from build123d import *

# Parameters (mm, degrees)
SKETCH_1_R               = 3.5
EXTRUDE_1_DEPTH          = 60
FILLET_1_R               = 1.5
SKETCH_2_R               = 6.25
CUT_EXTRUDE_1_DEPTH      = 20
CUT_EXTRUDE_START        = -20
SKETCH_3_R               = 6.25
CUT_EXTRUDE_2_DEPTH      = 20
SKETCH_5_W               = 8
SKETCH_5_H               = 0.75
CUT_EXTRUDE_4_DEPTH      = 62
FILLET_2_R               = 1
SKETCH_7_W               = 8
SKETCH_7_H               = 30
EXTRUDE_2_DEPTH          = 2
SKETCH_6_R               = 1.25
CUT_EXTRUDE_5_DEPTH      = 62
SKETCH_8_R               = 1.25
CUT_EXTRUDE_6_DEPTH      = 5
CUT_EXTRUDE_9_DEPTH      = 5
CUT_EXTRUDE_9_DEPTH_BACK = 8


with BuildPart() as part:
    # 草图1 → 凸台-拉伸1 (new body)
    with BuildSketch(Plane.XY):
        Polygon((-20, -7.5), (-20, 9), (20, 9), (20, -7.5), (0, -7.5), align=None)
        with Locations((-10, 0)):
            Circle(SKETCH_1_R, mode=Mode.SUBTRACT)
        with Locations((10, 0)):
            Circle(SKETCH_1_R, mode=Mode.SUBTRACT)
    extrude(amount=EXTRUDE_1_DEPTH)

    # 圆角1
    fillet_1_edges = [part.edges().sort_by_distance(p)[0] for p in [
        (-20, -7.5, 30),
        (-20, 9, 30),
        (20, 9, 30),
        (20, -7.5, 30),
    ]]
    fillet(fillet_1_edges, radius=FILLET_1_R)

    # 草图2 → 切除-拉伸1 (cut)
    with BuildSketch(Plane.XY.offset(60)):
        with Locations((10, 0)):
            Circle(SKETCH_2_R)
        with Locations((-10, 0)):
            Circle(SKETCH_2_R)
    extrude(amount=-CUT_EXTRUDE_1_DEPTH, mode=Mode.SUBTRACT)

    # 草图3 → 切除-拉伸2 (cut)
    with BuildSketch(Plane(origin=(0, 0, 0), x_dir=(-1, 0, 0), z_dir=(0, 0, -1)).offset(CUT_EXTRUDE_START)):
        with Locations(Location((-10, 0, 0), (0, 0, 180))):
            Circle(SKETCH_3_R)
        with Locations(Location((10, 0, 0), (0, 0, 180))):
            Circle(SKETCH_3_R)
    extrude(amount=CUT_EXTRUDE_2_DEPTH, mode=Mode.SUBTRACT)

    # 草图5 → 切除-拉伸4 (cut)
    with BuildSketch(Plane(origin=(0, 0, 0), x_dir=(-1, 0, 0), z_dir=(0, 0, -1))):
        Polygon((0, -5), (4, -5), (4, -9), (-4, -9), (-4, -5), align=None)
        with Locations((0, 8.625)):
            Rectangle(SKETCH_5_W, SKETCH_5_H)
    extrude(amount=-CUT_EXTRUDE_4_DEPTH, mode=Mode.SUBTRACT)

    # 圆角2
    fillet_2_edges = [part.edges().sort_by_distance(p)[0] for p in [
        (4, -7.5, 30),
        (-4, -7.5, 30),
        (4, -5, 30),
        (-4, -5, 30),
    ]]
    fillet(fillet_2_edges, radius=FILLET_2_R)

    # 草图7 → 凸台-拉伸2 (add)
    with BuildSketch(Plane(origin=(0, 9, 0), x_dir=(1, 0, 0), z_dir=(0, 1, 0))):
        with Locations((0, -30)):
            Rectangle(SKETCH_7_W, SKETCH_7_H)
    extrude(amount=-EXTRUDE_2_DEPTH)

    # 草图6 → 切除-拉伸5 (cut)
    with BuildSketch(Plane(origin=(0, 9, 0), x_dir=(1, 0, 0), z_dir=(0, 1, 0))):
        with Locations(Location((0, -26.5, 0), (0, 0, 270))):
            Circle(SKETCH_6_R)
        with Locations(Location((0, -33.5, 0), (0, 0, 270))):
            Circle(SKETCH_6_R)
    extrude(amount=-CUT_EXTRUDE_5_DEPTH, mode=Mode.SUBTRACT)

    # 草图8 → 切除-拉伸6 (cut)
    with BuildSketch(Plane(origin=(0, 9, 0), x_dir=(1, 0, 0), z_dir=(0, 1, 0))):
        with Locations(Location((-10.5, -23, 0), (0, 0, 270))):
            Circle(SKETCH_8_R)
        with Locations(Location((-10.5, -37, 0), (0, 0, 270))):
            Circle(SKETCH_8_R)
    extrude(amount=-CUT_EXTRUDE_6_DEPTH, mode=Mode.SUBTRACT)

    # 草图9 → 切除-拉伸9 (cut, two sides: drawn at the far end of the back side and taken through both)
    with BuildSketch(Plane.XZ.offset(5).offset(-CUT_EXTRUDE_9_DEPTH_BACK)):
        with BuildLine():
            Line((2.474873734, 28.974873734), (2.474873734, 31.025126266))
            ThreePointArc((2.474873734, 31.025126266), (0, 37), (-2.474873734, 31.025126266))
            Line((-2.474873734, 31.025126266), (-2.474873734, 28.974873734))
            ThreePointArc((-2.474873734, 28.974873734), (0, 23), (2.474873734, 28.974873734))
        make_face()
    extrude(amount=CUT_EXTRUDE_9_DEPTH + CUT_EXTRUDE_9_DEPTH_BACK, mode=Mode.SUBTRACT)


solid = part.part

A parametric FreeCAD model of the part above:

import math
import FreeCAD as App
import Part
import Sketcher
from FreeCAD import Vector


def edges_at(feature, points):
    """Names of the edges that pass closest to the given points."""
    edges = feature.Shape.Edges
    near = lambda p: min(range(len(edges)), key=lambda i: edges[i].distToShape(Part.Vertex(*p))[0])
    return sorted({f"Edge{near(p) + 1}" for p in points})


def add_polygon(sketch, points):
    """Adds a closed chain of lines whose ends are joined by coincident constraints."""
    first, n = sketch.GeometryCount, len(points)
    for a, b in zip(points, points[1:] + points[:1]):
        sketch.addGeometry(Part.LineSegment(App.Vector(*a, 0), App.Vector(*b, 0)), False)
    for i in range(n):
        sketch.addConstraint(Sketcher.Constraint("Coincident", first + i, 2, first + (i + 1) % n, 1))

doc = App.newDocument("Part")
body = doc.addObject("PartDesign::Body", "Body")

sketch1 = doc.addObject("Sketcher::SketchObject", "Sketch")
body.addObject(sketch1)
sketch1.AttachmentSupport = (doc.XY_Plane, [""])
sketch1.MapMode = "FlatFace"
add_polygon(sketch1, [(-20, 9), (-20, -7.5), (20, -7.5), (20, 9)])
sketch1.addGeometry(Part.Circle(Vector(10, 0, 0), Vector(0, 0, 1), 3.5), False)
sketch1.addGeometry(Part.Circle(Vector(-10, 0, 0), Vector(0, 0, 1), 3.5), False)
sketch1.addConstraint([
    Sketcher.Constraint("Vertical", 0),
    Sketcher.Constraint("Horizontal", 1),
    Sketcher.Constraint("Vertical", 2),
    Sketcher.Constraint("Horizontal", 3),
    Sketcher.Constraint("Equal", 4, 5),
    Sketcher.Constraint("Symmetric", 4, 3, 5, 3, -1, 1),
    Sketcher.Constraint("PointOnObject", 4, 3, -1),
    Sketcher.Constraint("Diameter", 4, 7.0),
    Sketcher.Constraint("DistanceX", 1, 1, 1, 2, 40.0),
    Sketcher.Constraint("DistanceY", 0, 2, 0, 1, 16.5),
    Sketcher.Constraint("DistanceX", -1, 1, 4, 3, 10.0),
    Sketcher.Constraint("DistanceX", 0, 2, -1, 1, 20.0),
    Sketcher.Constraint("DistanceY", -1, 1, 2, 2, 9.0),
])
pad1 = doc.addObject("PartDesign::Pad", "Pad")
body.addObject(pad1)
pad1.Profile = sketch1
pad1.Length = 60
doc.recompute()

fillet = doc.addObject("PartDesign::Fillet", "Fillet")
body.addObject(fillet)
fillet.Base = (pad1, edges_at(pad1, [
    (-20, -7.5, 30),
    (-20, 9, 30),
    (20, 9, 30),
    (20, -7.5, 30),
]))
fillet.Radius = 1.5

sketch2 = doc.addObject("Sketcher::SketchObject", "Sketch001")
body.addObject(sketch2)
sketch2.AttachmentSupport = (doc.XY_Plane, [""])
sketch2.MapMode = "FlatFace"
sketch2.AttachmentOffset = App.Placement(Vector(0, 0, 60), App.Rotation())
sketch2.addGeometry([
    Part.Circle(Vector(10, 0, 0), Vector(0, 0, 1), 6),
    Part.Circle(Vector(-10, 0, 0), Vector(0, 0, 1), 6),
], False)
sketch2.addConstraint([
    Sketcher.Constraint("Equal", 0, 1),
    Sketcher.Constraint("Symmetric", 0, 3, 1, 3, -1, 1),
    Sketcher.Constraint("PointOnObject", 0, 3, -1),
    Sketcher.Constraint("Diameter", 0, 12.5),
    Sketcher.Constraint("DistanceX", -1, 1, 0, 3, 10.0),
])
pocket1 = doc.addObject("PartDesign::Pocket", "Pocket")
body.addObject(pocket1)
pocket1.Profile = sketch2
pocket1.Length = 20

sketch3 = doc.addObject("Sketcher::SketchObject", "Sketch002")
body.addObject(sketch3)
sketch3.AttachmentSupport = (doc.XY_Plane, [""])
sketch3.MapMode = "FlatFace"
sketch3.AttachmentOffset = App.Placement(Vector(0, 0, 20), App.Rotation())
sketch3.addGeometry([
    Part.Circle(Vector(10, 0, 0), Vector(0, 0, 1), 6),
    Part.Circle(Vector(-10, 0, 0), Vector(0, 0, 1), 6),
], False)
sketch3.addConstraint([
    Sketcher.Constraint("Equal", 0, 1),
    Sketcher.Constraint("Symmetric", 0, 3, 1, 3, -1, 1),
    Sketcher.Constraint("PointOnObject", 0, 3, -1),
    Sketcher.Constraint("Diameter", 0, 12.5),
    Sketcher.Constraint("DistanceX", -1, 1, 0, 3, 10.0),
])
pocket2 = doc.addObject("PartDesign::Pocket", "Pocket001")
body.addObject(pocket2)
pocket2.Profile = sketch3
pocket2.Length = 20

sketch4 = doc.addObject("Sketcher::SketchObject", "Sketch003")
body.addObject(sketch4)
sketch4.AttachmentSupport = (doc.XY_Plane, [""])
sketch4.MapMode = "FlatFace"
add_polygon(sketch4, [(-4, -5), (4, -5), (4, -9), (-4, -9)])
add_polygon(sketch4, [(4, 9), (4, 8.2), (-4, 8.2), (-4, 9)])
sketch4.addConstraint([
    Sketcher.Constraint("Horizontal", 0),
    Sketcher.Constraint("Vertical", 1),
    Sketcher.Constraint("Horizontal", 2),
    Sketcher.Constraint("Vertical", 3),
    Sketcher.Constraint("Vertical", 4),
    Sketcher.Constraint("Horizontal", 5),
    Sketcher.Constraint("Vertical", 6),
    Sketcher.Constraint("Horizontal", 7),
    Sketcher.Constraint("Symmetric", 1, 2, 6, 2, -1, 1),
    Sketcher.Constraint("Vertical", 1, 2, 4, 2),
    Sketcher.Constraint("Vertical", 3, 2, 5, 2),
    Sketcher.Constraint("DistanceX", 0, 1, 0, 2, 8.0),
    Sketcher.Constraint("DistanceY", 1, 2, 1, 1, 4.0),
    Sketcher.Constraint("DistanceY", 0, 2, -1, 1, 5.0),
    Sketcher.Constraint("DistanceY", 4, 2, 4, 1, 0.75),
])
pocket3 = doc.addObject("PartDesign::Pocket", "Pocket002")
body.addObject(pocket3)
pocket3.Profile = sketch4
pocket3.Length = 62
pocket3.Reversed = True
doc.recompute()

fillet2 = doc.addObject("PartDesign::Fillet", "Fillet001")
body.addObject(fillet2)
fillet2.Base = (pocket3, edges_at(pocket3, [
    (4, -7.5, 30),
    (-4, -7.5, 30),
    (4, -5, 30),
    (-4, -5, 30),
]))
fillet2.Radius = 1

sketch5 = doc.addObject("Sketcher::SketchObject", "Sketch004")
body.addObject(sketch5)
sketch5.AttachmentSupport = (doc.XZ_Plane, [""])
sketch5.MapMode = "FlatFace"
sketch5.AttachmentOffset = App.Placement(Vector(0, 0, -9), App.Rotation())
add_polygon(sketch5, [(-4, 15), (-4, 45), (4, 45), (4, 15)])
sketch5.addConstraint([
    Sketcher.Constraint("Vertical", 0),
    Sketcher.Constraint("Horizontal", 1),
    Sketcher.Constraint("Vertical", 2),
    Sketcher.Constraint("Horizontal", 3),
    Sketcher.Constraint("DistanceX", 1, 1, 1, 2, 8.0),
    Sketcher.Constraint("DistanceY", 0, 1, 0, 2, 30.0),
    Sketcher.Constraint("DistanceX", 0, 2, -1, 1, 4.0),
    Sketcher.Constraint("DistanceY", -1, 1, 0, 2, 45.0),
])
pad2 = doc.addObject("PartDesign::Pad", "Pad001")
body.addObject(pad2)
pad2.Profile = sketch5
pad2.Length = 2

sketch6 = doc.addObject("Sketcher::SketchObject", "Sketch005")
body.addObject(sketch6)
sketch6.AttachmentSupport = (doc.XZ_Plane, [""])
sketch6.MapMode = "FlatFace"
sketch6.AttachmentOffset = App.Placement(Vector(0, 0, -9), App.Rotation())
sketch6.addGeometry([
    Part.Circle(Vector(0, 26.5, 0), Vector(0, 0, 1), 1.2),
    Part.Circle(Vector(0, 33.5, 0), Vector(0, 0, 1), 1.2),
], False)
sketch6.addConstraint([
    Sketcher.Constraint("Equal", 0, 1),
    Sketcher.Constraint("PointOnObject", 0, 3, -2),
    Sketcher.Constraint("PointOnObject", 1, 3, -2),
    Sketcher.Constraint("Diameter", 0, 2.5),
    Sketcher.Constraint("DistanceY", 0, 3, 1, 3, 7.0),
    Sketcher.Constraint("DistanceY", -1, 1, 0, 3, 26.5),
])
pocket4 = doc.addObject("PartDesign::Pocket", "Pocket003")
body.addObject(pocket4)
pocket4.Profile = sketch6
pocket4.Length = 62
pocket4.Reversed = True

sketch7 = doc.addObject("Sketcher::SketchObject", "Sketch006")
body.addObject(sketch7)
sketch7.AttachmentSupport = (doc.XZ_Plane, [""])
sketch7.MapMode = "FlatFace"
sketch7.AttachmentOffset = App.Placement(Vector(0, 0, -9), App.Rotation())
sketch7.addGeometry([
    Part.Circle(Vector(-10.5, 23, 0), Vector(0, 0, 1), 1.2),
    Part.Circle(Vector(-10.5, 37, 0), Vector(0, 0, 1), 1.2),
], False)
sketch7.addConstraint([
    Sketcher.Constraint("Equal", 0, 1),
    Sketcher.Constraint("Vertical", 0, 3, 1, 3),
    Sketcher.Constraint("Diameter", 0, 2.5),
    Sketcher.Constraint("DistanceY", -1, 1, 0, 3, 23.0),
    Sketcher.Constraint("DistanceY", -1, 1, 1, 3, 37.0),
    Sketcher.Constraint("DistanceX", 0, 3, -1, 1, 10.5),
])
pocket5 = doc.addObject("PartDesign::Pocket", "Pocket004")
body.addObject(pocket5)
pocket5.Profile = sketch7
pocket5.Length = 5
pocket5.Reversed = True

sketch8 = doc.addObject("Sketcher::SketchObject", "Sketch007")
body.addObject(sketch8)
sketch8.AttachmentSupport = (doc.XZ_Plane, [""])
sketch8.MapMode = "FlatFace"
sketch8.AttachmentOffset = App.Placement(Vector(0, 0, 5), App.Rotation())
sketch8.addGeometry([
    Part.LineSegment(Vector(2.5, 29, 0), Vector(2.5, 31, 0)),
    Part.ArcOfCircle(Part.Circle(Vector(0, 33.5, 0), Vector(0, 0, 1), 3.5), math.radians(-45), math.radians(225)),
    Part.LineSegment(Vector(-2.5, 31, 0), Vector(-2.5, 29, 0)),
    Part.ArcOfCircle(Part.Circle(Vector(0, 26.5, 0), Vector(0, 0, 1), 3.5), math.radians(135), math.radians(405)),
], False)
sketch8.addConstraint([
    Sketcher.Constraint("Coincident", 0, 2, 1, 1),
    Sketcher.Constraint("Coincident", 1, 2, 2, 1),
    Sketcher.Constraint("Coincident", 2, 2, 3, 1),
    Sketcher.Constraint("Coincident", 3, 2, 0, 1),
    Sketcher.Constraint("Vertical", 0),
    Sketcher.Constraint("Vertical", 2),
    Sketcher.Constraint("Equal", 1, 3),
    Sketcher.Constraint("Symmetric", 0, 2, 1, 2, -2),
    Sketcher.Constraint("PointOnObject", 3, 3, -2),
    Sketcher.Constraint("Radius", 1, 3.5),
    Sketcher.Constraint("DistanceY", 3, 3, 1, 3, 7.0),
    Sketcher.Constraint("DistanceY", -1, 1, 1, 3, 33.5),
    Sketcher.Constraint("DistanceY", 0, 1, 0, 2, 2.050253),
])
pocket6 = doc.addObject("PartDesign::Pocket", "Pocket005")
body.addObject(pocket6)
pocket6.Profile = sketch8
pocket6.Type = "TwoLengths"
pocket6.Length = 5
pocket6.Length2 = 8
pocket6.Reversed = True

doc.recompute()
